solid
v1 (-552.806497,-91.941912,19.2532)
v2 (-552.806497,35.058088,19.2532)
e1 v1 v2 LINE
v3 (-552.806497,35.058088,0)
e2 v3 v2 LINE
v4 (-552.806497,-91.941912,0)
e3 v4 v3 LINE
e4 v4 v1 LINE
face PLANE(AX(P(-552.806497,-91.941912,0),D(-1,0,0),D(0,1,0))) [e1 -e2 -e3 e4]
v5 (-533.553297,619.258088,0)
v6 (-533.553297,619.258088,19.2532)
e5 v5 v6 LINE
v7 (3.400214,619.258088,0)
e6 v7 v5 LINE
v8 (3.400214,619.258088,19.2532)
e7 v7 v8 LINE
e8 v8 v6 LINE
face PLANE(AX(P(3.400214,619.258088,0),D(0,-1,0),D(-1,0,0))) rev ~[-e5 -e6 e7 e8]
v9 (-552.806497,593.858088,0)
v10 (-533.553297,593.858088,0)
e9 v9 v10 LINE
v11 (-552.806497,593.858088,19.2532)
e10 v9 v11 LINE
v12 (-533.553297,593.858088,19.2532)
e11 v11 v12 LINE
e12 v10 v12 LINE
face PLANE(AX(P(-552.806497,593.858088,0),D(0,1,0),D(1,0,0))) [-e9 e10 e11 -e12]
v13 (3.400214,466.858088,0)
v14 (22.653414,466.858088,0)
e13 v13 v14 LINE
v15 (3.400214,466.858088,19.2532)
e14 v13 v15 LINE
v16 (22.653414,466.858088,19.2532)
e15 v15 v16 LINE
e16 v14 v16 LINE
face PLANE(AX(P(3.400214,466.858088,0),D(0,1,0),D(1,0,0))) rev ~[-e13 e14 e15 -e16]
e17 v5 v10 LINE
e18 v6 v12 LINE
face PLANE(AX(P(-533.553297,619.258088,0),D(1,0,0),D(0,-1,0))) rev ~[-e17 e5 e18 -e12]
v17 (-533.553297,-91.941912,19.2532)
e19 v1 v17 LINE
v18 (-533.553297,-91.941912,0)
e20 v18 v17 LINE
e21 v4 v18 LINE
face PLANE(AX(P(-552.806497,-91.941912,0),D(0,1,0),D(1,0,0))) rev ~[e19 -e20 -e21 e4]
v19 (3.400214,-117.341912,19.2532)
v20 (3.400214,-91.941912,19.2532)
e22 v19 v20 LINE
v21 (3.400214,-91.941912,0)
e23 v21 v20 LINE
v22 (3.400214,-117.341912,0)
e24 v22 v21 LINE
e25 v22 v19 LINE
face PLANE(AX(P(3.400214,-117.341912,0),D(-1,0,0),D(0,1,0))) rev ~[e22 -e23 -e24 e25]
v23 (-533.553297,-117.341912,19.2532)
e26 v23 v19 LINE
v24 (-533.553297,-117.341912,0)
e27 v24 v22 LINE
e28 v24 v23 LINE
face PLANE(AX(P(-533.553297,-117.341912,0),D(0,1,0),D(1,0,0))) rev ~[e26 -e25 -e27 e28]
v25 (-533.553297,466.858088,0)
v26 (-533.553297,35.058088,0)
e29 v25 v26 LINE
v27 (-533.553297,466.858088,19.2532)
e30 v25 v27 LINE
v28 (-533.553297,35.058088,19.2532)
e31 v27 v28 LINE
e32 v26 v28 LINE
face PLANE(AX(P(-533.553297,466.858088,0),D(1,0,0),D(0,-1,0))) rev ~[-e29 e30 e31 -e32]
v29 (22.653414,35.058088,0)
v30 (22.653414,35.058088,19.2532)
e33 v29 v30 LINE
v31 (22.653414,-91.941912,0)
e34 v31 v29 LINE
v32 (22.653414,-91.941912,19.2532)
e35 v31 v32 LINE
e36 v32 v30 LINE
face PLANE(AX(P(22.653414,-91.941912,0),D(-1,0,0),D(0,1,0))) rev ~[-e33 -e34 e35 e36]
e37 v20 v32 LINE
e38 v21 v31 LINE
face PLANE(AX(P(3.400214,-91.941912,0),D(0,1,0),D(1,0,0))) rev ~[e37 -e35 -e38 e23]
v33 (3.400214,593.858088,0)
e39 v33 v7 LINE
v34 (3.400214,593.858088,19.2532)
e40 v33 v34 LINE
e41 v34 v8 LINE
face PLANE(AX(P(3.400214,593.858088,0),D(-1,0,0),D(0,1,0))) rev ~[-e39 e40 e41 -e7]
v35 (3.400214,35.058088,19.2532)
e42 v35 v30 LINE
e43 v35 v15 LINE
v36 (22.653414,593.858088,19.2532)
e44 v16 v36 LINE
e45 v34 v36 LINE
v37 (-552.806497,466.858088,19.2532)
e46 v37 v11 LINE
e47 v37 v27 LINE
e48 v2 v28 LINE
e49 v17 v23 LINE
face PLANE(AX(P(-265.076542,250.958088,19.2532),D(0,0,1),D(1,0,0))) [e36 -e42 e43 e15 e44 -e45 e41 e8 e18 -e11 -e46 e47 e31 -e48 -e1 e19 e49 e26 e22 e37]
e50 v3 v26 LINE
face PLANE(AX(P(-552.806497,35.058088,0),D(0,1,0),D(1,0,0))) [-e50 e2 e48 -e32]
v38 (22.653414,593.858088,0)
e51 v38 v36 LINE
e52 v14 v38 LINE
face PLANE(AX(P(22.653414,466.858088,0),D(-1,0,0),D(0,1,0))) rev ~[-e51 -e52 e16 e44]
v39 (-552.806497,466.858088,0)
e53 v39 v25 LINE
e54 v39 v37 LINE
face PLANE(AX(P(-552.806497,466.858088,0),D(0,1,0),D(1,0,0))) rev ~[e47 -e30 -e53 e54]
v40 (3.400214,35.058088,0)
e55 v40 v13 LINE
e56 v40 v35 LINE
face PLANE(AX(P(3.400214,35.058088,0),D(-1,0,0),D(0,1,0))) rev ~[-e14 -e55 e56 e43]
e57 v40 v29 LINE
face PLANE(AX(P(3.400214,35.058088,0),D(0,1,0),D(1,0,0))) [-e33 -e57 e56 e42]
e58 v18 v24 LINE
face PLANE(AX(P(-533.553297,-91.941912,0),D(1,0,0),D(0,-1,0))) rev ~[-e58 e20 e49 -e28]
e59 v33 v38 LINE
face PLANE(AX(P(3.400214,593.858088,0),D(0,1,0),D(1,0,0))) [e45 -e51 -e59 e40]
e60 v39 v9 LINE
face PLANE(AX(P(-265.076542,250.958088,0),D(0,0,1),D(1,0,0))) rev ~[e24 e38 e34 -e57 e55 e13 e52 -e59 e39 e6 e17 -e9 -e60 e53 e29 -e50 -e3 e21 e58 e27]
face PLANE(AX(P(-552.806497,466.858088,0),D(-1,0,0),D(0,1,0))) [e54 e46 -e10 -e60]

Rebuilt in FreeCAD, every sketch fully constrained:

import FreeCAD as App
import Part
import Sketcher
Q = App.Units.Quantity

doc = App.newDocument("Part")
body = doc.addObject("PartDesign::Body", "Body")

# Sketch on XY plane
sketch1 = body.newObject("Sketcher::SketchObject", "Sketch")
sketch1.AttachmentSupport = (doc.getObject("XY_Plane"), [""])
sketch1.MapMode = "FlatFace"
sketch1.addGeometry([
    Part.LineSegment(App.Vector(3, 619, 0), App.Vector(-534, 619, 0)),  # 0
    Part.LineSegment(App.Vector(-534, 619, 0), App.Vector(-534, 594, 0)),  # 1
    Part.LineSegment(App.Vector(-534, 594, 0), App.Vector(-553, 594, 0)),  # 2
    Part.LineSegment(App.Vector(-553, 594, 0), App.Vector(-553, 467, 0)),  # 3
    Part.LineSegment(App.Vector(-553, 467, 0), App.Vector(-534, 467, 0)),  # 4
    Part.LineSegment(App.Vector(-534, 467, 0), App.Vector(-534, 35, 0)),  # 5
    Part.LineSegment(App.Vector(-534, 35, 0), App.Vector(-553, 35, 0)),  # 6
    Part.LineSegment(App.Vector(-553, 35, 0), App.Vector(-553, -92, 0)),  # 7
    Part.LineSegment(App.Vector(-553, -92, 0), App.Vector(-534, -92, 0)),  # 8
    Part.LineSegment(App.Vector(-534, -92, 0), App.Vector(-534, -117, 0)),  # 9
    Part.LineSegment(App.Vector(-534, -117, 0), App.Vector(3, -117, 0)),  # 10
    Part.LineSegment(App.Vector(3, -117, 0), App.Vector(3, -92, 0)),  # 11
    Part.LineSegment(App.Vector(3, -92, 0), App.Vector(23, -92, 0)),  # 12
    Part.LineSegment(App.Vector(23, -92, 0), App.Vector(23, 35, 0)),  # 13
    Part.LineSegment(App.Vector(23, 35, 0), App.Vector(3, 35, 0)),  # 14
    Part.LineSegment(App.Vector(3, 35, 0), App.Vector(3, 467, 0)),  # 15
    Part.LineSegment(App.Vector(3, 467, 0), App.Vector(23, 467, 0)),  # 16
    Part.LineSegment(App.Vector(23, 467, 0), App.Vector(23, 594, 0)),  # 17
    Part.LineSegment(App.Vector(23, 594, 0), App.Vector(3, 594, 0)),  # 18
    Part.LineSegment(App.Vector(3, 594, 0), App.Vector(3, 619, 0)),  # 19
], False)
sketch1.addConstraint([
    Sketcher.Constraint("Coincident", 0, 2, 1, 1),
    Sketcher.Constraint("Coincident", 1, 2, 2, 1),
    Sketcher.Constraint("Coincident", 2, 2, 3, 1),
    Sketcher.Constraint("Coincident", 3, 2, 4, 1),
    Sketcher.Constraint("Coincident", 4, 2, 5, 1),
    Sketcher.Constraint("Coincident", 5, 2, 6, 1),
    Sketcher.Constraint("Coincident", 6, 2, 7, 1),
    Sketcher.Constraint("Coincident", 7, 2, 8, 1),
    Sketcher.Constraint("Coincident", 8, 2, 9, 1),
    Sketcher.Constraint("Coincident", 9, 2, 10, 1),
    Sketcher.Constraint("Coincident", 10, 2, 11, 1),
    Sketcher.Constraint("Coincident", 11, 2, 12, 1),
    Sketcher.Constraint("Coincident", 12, 2, 13, 1),
    Sketcher.Constraint("Coincident", 13, 2, 14, 1),
    Sketcher.Constraint("Coincident", 14, 2, 15, 1),
    Sketcher.Constraint("Coincident", 15, 2, 16, 1),
    Sketcher.Constraint("Coincident", 16, 2, 17, 1),
    Sketcher.Constraint("Coincident", 17, 2, 18, 1),
    Sketcher.Constraint("Coincident", 18, 2, 19, 1),
    Sketcher.Constraint("Coincident", 19, 2, 0, 1),
    Sketcher.Constraint("Horizontal", 0),
    Sketcher.Constraint("Vertical", 1),
    Sketcher.Constraint("Horizontal", 2),
    Sketcher.Constraint("Vertical", 3),
    Sketcher.Constraint("Horizontal", 4),
    Sketcher.Constraint("Vertical", 5),
    Sketcher.Constraint("Horizontal", 6),
    Sketcher.Constraint("Vertical", 7),
    Sketcher.Constraint("Horizontal", 8),
    Sketcher.Constraint("Vertical", 9),
    Sketcher.Constraint("Horizontal", 10),
    Sketcher.Constraint("Vertical", 11),
    Sketcher.Constraint("Horizontal", 12),
    Sketcher.Constraint("Vertical", 13),
    Sketcher.Constraint("Horizontal", 14),
    Sketcher.Constraint("Vertical", 15),
    Sketcher.Constraint("Horizontal", 16),
    Sketcher.Constraint("Vertical", 17),
    Sketcher.Constraint("Horizontal", 18),
    Sketcher.Constraint("Vertical", 19),
    Sketcher.Constraint("Horizontal", 8, 2, 11, 2),
    Sketcher.Constraint("Horizontal", 6, 2, 13, 2),
    Sketcher.Constraint("Horizontal", 4, 2, 15, 2),
    Sketcher.Constraint("Horizontal", 2, 2, 17, 2),
    Sketcher.Constraint("Vertical", 1, 2, 4, 2),
    Sketcher.Constraint("Vertical", 3, 2, 6, 2),
    Sketcher.Constraint("Vertical", 5, 2, 8, 2),
    Sketcher.Constraint("Vertical", 11, 2, 14, 2),
    Sketcher.Constraint("Vertical", 13, 2, 16, 2),
    Sketcher.Constraint("Vertical", 15, 2, 18, 2),
    Sketcher.Constraint("Equal", 8, 12),
    Sketcher.Constraint("Equal", 3, 7),
    Sketcher.Constraint("Equal", 1, 9),
    Sketcher.Constraint("DistanceY", 1, 2, 1, 1, Q("1 in")),
    Sketcher.Constraint("DistanceY", 3, 2, 3, 1, Q("5 in")),
    Sketcher.Constraint("DistanceY", 5, 2, 5, 1, Q("17 in")),
    Sketcher.Constraint("DistanceX", 2, 2, 2, 1, Q("0.758 in")),
    Sketcher.Constraint("DistanceX", 0, 2, 0, 1, Q("536.953511 mm")),
    Sketcher.Constraint("DistanceY", -1, 1, 0, 2, Q("619.258088 mm")),
    Sketcher.Constraint("DistanceX", 0, 2, -1, 1, Q("533.553297 mm")),
])
pad1 = body.newObject("PartDesign::Pad", "Pad")
pad1.Profile = sketch1
pad1.Length = Q("0.758 in")

doc.recompute()
